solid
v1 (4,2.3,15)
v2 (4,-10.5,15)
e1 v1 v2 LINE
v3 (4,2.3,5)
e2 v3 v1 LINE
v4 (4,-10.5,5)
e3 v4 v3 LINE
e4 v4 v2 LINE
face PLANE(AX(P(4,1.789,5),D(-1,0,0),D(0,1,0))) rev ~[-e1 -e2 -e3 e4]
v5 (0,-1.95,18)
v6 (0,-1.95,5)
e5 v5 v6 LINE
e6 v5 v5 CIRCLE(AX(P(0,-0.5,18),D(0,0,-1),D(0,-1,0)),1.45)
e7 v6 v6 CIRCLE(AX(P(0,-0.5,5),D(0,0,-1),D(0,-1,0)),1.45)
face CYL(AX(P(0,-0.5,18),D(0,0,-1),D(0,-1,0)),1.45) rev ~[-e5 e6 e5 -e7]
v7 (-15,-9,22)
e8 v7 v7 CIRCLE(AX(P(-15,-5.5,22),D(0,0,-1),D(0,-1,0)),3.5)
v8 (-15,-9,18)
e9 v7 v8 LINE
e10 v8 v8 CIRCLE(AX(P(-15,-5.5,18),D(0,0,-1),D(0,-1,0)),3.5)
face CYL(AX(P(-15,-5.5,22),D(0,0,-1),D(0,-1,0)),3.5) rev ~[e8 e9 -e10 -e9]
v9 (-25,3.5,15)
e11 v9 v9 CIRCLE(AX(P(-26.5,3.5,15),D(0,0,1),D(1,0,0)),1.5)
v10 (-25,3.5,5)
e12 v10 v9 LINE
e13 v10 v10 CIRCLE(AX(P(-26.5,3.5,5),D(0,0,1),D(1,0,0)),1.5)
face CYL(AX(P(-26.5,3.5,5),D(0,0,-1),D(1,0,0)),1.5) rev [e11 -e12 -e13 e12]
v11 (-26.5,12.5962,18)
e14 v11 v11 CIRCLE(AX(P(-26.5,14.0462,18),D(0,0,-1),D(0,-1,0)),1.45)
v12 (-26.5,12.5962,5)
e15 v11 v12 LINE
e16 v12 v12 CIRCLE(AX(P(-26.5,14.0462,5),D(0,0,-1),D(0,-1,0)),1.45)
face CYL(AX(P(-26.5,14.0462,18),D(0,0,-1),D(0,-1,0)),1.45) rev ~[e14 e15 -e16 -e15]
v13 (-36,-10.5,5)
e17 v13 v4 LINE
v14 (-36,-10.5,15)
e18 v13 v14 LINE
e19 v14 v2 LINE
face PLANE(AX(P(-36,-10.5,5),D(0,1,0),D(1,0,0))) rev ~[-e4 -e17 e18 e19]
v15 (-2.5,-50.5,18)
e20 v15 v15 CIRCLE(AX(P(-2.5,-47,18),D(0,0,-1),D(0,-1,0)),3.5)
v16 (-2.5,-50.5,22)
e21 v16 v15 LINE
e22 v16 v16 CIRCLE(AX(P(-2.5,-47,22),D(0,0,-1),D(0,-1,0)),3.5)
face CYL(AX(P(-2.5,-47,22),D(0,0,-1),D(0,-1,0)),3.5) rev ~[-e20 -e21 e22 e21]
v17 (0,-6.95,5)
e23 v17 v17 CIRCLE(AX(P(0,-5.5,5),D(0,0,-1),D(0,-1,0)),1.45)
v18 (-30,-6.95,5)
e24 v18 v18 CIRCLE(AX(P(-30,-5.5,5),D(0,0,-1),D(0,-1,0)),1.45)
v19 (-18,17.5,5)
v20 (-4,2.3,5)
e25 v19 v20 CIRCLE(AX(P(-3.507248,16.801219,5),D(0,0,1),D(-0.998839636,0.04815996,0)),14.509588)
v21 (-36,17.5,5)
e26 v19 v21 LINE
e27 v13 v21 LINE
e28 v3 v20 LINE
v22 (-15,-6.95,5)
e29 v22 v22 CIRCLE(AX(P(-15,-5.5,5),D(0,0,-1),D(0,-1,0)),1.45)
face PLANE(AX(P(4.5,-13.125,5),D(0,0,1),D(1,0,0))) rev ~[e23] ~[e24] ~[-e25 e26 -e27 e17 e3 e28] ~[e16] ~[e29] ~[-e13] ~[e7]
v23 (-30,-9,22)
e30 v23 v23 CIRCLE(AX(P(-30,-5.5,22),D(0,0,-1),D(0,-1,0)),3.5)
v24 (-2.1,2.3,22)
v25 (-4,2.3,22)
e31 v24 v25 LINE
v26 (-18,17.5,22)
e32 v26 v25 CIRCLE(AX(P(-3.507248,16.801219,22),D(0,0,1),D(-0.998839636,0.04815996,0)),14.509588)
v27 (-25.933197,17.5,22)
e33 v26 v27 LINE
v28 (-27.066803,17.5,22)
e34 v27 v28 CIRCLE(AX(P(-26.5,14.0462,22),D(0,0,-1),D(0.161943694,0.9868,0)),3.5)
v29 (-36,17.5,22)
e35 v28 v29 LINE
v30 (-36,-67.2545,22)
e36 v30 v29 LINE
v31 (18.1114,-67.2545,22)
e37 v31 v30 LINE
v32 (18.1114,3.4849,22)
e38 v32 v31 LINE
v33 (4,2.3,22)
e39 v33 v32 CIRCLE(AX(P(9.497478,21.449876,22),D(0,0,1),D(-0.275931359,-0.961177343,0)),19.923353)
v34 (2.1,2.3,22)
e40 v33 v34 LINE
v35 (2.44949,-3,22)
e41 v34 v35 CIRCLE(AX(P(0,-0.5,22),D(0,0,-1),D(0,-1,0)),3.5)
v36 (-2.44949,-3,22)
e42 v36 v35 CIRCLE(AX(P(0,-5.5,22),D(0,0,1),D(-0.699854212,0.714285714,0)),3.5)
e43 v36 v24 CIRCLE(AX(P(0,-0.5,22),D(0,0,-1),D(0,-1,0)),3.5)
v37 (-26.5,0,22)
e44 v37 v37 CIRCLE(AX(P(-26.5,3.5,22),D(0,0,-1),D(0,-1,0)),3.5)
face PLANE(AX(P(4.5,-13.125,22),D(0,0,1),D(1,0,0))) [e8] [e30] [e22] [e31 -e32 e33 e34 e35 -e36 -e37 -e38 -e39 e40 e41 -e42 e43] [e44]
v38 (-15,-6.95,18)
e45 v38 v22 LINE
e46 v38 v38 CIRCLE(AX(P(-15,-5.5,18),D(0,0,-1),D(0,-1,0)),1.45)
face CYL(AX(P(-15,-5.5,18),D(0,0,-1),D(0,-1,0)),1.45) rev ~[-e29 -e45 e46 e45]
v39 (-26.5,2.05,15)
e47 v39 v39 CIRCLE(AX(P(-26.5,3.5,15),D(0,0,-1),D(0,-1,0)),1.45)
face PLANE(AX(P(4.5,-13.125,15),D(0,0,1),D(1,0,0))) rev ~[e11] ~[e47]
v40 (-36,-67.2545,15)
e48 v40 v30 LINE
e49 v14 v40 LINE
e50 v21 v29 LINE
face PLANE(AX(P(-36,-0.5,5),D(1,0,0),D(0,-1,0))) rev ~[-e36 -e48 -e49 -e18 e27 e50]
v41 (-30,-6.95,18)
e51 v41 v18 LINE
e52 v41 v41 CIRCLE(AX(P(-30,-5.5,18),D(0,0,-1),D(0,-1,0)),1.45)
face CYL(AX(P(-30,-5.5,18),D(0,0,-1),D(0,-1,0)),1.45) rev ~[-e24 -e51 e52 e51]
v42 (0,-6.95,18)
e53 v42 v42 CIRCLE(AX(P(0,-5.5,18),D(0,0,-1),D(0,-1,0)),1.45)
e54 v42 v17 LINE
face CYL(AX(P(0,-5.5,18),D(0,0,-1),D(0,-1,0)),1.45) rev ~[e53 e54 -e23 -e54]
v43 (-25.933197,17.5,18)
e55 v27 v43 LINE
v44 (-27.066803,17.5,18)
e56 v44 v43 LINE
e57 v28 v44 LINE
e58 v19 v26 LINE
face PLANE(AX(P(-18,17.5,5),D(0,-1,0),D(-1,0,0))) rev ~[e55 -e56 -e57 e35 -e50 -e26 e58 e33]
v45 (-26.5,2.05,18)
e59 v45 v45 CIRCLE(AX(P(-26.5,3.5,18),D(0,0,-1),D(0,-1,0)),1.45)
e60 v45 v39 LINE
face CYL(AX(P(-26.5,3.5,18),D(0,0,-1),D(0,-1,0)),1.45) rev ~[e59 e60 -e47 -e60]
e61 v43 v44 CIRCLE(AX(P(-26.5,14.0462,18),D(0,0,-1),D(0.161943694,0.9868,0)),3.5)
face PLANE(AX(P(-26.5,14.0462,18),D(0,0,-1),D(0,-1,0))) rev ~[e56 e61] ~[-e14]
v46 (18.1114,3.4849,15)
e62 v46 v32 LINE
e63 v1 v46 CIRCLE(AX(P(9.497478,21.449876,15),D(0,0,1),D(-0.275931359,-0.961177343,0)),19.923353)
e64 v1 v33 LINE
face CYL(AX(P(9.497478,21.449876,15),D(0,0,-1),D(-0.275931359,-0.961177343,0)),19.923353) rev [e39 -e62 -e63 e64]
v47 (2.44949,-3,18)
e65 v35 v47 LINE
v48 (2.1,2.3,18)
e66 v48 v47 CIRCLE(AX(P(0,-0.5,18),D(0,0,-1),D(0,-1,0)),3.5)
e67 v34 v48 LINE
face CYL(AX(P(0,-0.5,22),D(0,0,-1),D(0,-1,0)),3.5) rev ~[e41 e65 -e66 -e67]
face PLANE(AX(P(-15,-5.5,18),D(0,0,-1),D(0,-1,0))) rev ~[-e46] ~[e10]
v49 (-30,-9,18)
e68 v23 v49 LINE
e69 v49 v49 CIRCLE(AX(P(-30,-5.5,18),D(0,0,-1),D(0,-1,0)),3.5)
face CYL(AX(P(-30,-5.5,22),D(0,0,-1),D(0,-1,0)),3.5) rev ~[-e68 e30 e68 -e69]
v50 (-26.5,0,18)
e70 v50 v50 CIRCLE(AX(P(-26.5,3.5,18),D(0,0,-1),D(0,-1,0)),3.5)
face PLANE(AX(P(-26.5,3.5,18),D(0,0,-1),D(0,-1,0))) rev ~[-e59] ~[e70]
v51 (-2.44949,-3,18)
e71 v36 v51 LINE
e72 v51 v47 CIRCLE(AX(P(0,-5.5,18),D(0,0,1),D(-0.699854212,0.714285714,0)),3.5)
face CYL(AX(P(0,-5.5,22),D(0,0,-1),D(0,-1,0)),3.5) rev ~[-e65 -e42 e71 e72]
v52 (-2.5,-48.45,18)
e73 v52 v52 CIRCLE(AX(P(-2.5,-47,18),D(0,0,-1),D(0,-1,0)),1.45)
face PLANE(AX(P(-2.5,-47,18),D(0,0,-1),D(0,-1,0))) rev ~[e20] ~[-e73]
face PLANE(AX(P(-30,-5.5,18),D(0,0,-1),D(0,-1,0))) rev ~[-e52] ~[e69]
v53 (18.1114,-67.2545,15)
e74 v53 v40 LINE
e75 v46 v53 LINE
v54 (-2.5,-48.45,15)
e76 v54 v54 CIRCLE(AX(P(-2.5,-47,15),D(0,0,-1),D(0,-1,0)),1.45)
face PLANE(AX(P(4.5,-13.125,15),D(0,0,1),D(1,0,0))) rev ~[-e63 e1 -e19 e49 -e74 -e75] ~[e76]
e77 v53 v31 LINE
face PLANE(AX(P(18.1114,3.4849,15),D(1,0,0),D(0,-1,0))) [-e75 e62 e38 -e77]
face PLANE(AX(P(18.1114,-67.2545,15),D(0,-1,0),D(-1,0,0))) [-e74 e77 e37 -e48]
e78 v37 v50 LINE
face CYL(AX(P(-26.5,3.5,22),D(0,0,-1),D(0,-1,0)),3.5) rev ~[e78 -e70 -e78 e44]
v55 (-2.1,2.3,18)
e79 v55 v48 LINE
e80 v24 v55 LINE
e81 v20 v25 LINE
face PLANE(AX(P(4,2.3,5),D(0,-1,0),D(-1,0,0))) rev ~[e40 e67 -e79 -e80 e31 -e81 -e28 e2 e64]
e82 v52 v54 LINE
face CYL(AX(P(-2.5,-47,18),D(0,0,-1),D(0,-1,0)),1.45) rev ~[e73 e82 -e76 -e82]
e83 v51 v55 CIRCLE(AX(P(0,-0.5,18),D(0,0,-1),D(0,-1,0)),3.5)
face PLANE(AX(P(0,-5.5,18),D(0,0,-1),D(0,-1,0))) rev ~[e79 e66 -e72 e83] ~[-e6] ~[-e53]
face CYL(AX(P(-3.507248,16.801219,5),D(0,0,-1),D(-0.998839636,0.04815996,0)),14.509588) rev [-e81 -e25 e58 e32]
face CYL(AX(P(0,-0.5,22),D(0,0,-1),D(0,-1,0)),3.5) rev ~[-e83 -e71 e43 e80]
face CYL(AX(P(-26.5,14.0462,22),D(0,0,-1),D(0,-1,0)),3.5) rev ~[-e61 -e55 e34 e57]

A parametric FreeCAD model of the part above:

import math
import FreeCAD as App
import Part
import Sketcher

V = App.Vector

doc = App.newDocument("Part")
body = doc.addObject("PartDesign::Body", "Body")

sketch1 = doc.addObject("Sketcher::SketchObject", "Sketch")
body.addObject(sketch1)
sketch1.AttachmentSupport = (doc.XY_Plane, [""])
sketch1.MapMode = "FlatFace"
sketch1.AttachmentOffset = App.Placement(V(0, 0, 5), App.Rotation())
sketch1.addGeometry([
    Part.LineSegment(V(4, 2.3, 0), V(-4, 2.3, 0)),
    Part.ArcOfCircle(Part.Circle(V(-3.5, 16.8, 0), V(0, 0, 1), 14.5), math.radians(177), math.radians(268)),
    Part.LineSegment(V(-18, 17.5, 0), V(-36, 17.5, 0)),
    Part.LineSegment(V(-36, 17.5, 0), V(-36, -10.5, 0)),
    Part.LineSegment(V(-36, -10.5, 0), V(4, -10.5, 0)),
    Part.LineSegment(V(4, -10.5, 0), V(4, 2.3, 0)),
    Part.Circle(V(-30, -5.5, 0), V(0, 0, 1), 1.4),
    Part.Circle(V(-15, -5.5, 0), V(0, 0, 1), 1.4),
    Part.Circle(V(0, -5.5, 0), V(0, 0, 1), 1.4),
    Part.Circle(V(0, -0.5, 0), V(0, 0, 1), 1.4),
    Part.Circle(V(-26.5, 3.5, 0), V(0, 0, 1), 1.5),
    Part.Circle(V(-26.5, 14, 0), V(0, 0, 1), 1.4),
], False)
sketch1.addConstraint([
    Sketcher.Constraint("Coincident", 0, 2, 1, 2),
    Sketcher.Constraint("Coincident", 1, 1, 2, 1),
    Sketcher.Constraint("Coincident", 2, 2, 3, 1),
    Sketcher.Constraint("Coincident", 3, 2, 4, 1),
    Sketcher.Constraint("Coincident", 4, 2, 5, 1),
    Sketcher.Constraint("Coincident", 5, 2, 0, 1),
    Sketcher.Constraint("Horizontal", 0),
    Sketcher.Constraint("Horizontal", 2),
    Sketcher.Constraint("Vertical", 3),
    Sketcher.Constraint("Horizontal", 4),
    Sketcher.Constraint("Vertical", 5),
    Sketcher.Constraint("Equal", 6, 7),
    Sketcher.Constraint("Equal", 7, 8),
    Sketcher.Constraint("Equal", 8, 9),
    Sketcher.Constraint("Equal", 9, 11),
    Sketcher.Constraint("PointOnObject", 8, 3, -2),
    Sketcher.Constraint("PointOnObject", 9, 3, -2),
    Sketcher.Constraint("Horizontal", 6, 3, 7, 3),
    Sketcher.Constraint("Horizontal", 7, 3, 8, 3),
    Sketcher.Constraint("Vertical", 10, 3, 11, 3),
    Sketcher.Constraint("Diameter", 10, 3.0),
    Sketcher.Constraint("Diameter", 6, 2.8),
    Sketcher.Constraint("DistanceX", 0, 2, 0, 1, 8.0),
    Sketcher.Constraint("DistanceX", 2, 2, 2, 1, 18.0),
    Sketcher.Constraint("DistanceX", 4, 1, 4, 2, 40.0),
    Sketcher.Constraint("DistanceY", 3, 2, 3, 1, 28.0),
    Sketcher.Constraint("DistanceY", 5, 1, 5, 2, 12.8),
    Sketcher.Constraint("DistanceX", 6, 3, -1, 1, 30.0),
    Sketcher.Constraint("DistanceX", 7, 3, -1, 1, 15.0),
    Sketcher.Constraint("DistanceX", 0, 2, -1, 1, 4.0),
    Sketcher.Constraint("DistanceY", 8, 3, 9, 3, 5.0),
    Sketcher.Constraint("DistanceY", 6, 3, 10, 3, 9.0),
    Sketcher.Constraint("DistanceY", 10, 3, 1, 1, 14.0),
    Sketcher.Constraint("DistanceY", 6, 3, -1, 1, 5.5),
    Sketcher.Constraint("DistanceX", 10, 3, -1, 1, 26.5),
    Sketcher.Constraint("Radius", 1, 14.5095),
    Sketcher.Constraint("DistanceY", 11, 3, 1, 3, 2.755),
])
pad1 = doc.addObject("PartDesign::Pad", "Pad")
body.addObject(pad1)
pad1.Profile = sketch1
pad1.Length = 10

sketch2 = doc.addObject("Sketcher::SketchObject", "Sketch001")
body.addObject(sketch2)
sketch2.AttachmentSupport = (doc.XY_Plane, [""])
sketch2.MapMode = "FlatFace"
sketch2.AttachmentOffset = App.Placement(V(0, 0, 15), App.Rotation())
sketch2.addGeometry([
    Part.LineSegment(V(-36, -67.3, 0), V(18.1, -67.3, 0)),
    Part.LineSegment(V(18.1, -67.3, 0), V(18.1, 3.5, 0)),
    Part.ArcOfCircle(Part.Circle(V(9.5, 21.5, 0), V(0, 0, 1), 19.9), math.radians(-106), math.radians(-64)),
    Part.LineSegment(V(4, 2.3, 0), V(-4, 2.3, 0)),
    Part.ArcOfCircle(Part.Circle(V(-3.5, 16.8, 0), V(0, 0, 1), 14.5), math.radians(177), math.radians(268)),
    Part.LineSegment(V(-18, 17.5, 0), V(-36, 17.5, 0)),
    Part.LineSegment(V(-36, 17.5, 0), V(-36, -67.3, 0)),
    Part.Circle(V(-30, -5.5, 0), V(0, 0, 1), 1.4),
    Part.Circle(V(-15, -5.5, 0), V(0, 0, 1), 1.4),
    Part.Circle(V(0, -5.5, 0), V(0, 0, 1), 1.4),
    Part.Circle(V(0, -0.5, 0), V(0, 0, 1), 1.4),
], False)
sketch2.addConstraint([
    Sketcher.Constraint("Coincident", 0, 2, 1, 1),
    Sketcher.Constraint("Coincident", 1, 2, 2, 2),
    Sketcher.Constraint("Coincident", 2, 1, 3, 1),
    Sketcher.Constraint("Coincident", 3, 2, 4, 2),
    Sketcher.Constraint("Coincident", 4, 1, 5, 1),
    Sketcher.Constraint("Coincident", 5, 2, 6, 1),
    Sketcher.Constraint("Coincident", 6, 2, 0, 1),
    Sketcher.Constraint("Horizontal", 0),
    Sketcher.Constraint("Vertical", 1),
    Sketcher.Constraint("Horizontal", 3),
    Sketcher.Constraint("Horizontal", 5),
    Sketcher.Constraint("Vertical", 6),
    Sketcher.Constraint("Equal", 7, 8),
    Sketcher.Constraint("Equal", 8, 9),
    Sketcher.Constraint("Equal", 9, 10),
    Sketcher.Constraint("PointOnObject", 9, 3, -2),
    Sketcher.Constraint("PointOnObject", 10, 3, -2),
    Sketcher.Constraint("Horizontal", 7, 3, 8, 3),
    Sketcher.Constraint("Horizontal", 8, 3, 9, 3),
    Sketcher.Constraint("Diameter", 7, 2.8),
    Sketcher.Constraint("DistanceX", 3, 2, 3, 1, 8.0),
    Sketcher.Constraint("DistanceX", 5, 2, 5, 1, 18.0),
    Sketcher.Constraint("DistanceX", 7, 3, -1, 1, 30.0),
    Sketcher.Constraint("DistanceX", 8, 3, -1, 1, 15.0),
    Sketcher.Constraint("DistanceX", -1, 1, 2, 1, 4.0),
    Sketcher.Constraint("DistanceX", 4, 1, -1, 1, 18.0),
    Sketcher.Constraint("DistanceY", 9, 3, 10, 3, 5.0),
    Sketcher.Constraint("DistanceY", 8, 3, 4, 1, 23.0),
    Sketcher.Constraint("DistanceY", 7, 3, -1, 1, 5.5),
    Sketcher.Constraint("DistanceY", -1, 1, 2, 1, 2.3),
    Sketcher.Constraint("Radius", 2, 19.9236),
    Sketcher.Constraint("Radius", 4, 14.5095),
    Sketcher.Constraint("DistanceY", -1, 1, 2, 3, 21.45),
    Sketcher.Constraint("DistanceX", 0, 1, 0, 2, 54.1114),
    Sketcher.Constraint("DistanceY", 1, 1, 1, 2, 70.7394),
])
pad2 = doc.addObject("PartDesign::Pad", "Pad001")
body.addObject(pad2)
pad2.Profile = sketch2
pad2.Length = 7

sketch3 = doc.addObject("Sketcher::SketchObject", "Sketch002")
body.addObject(sketch3)
sketch3.AttachmentSupport = (doc.XY_Plane, [""])
sketch3.MapMode = "FlatFace"
sketch3.AttachmentOffset = App.Placement(V(0, 0, 22), App.Rotation())
sketch3.addGeometry([
    Part.Circle(V(-30, -5.5, 0), V(0, 0, 1), 1.4),
    Part.Circle(V(-15, -5.5, 0), V(0, 0, 1), 1.4),
    Part.Circle(V(0, -5.5, 0), V(0, 0, 1), 1.4),
    Part.Circle(V(0, -0.5, 0), V(0, 0, 1), 1.4),
    Part.Circle(V(-26.5, 3.5, 0), V(0, 0, 1), 1.4),
    Part.Circle(V(-2.5, -47, 0), V(0, 0, 1), 1.4),
    Part.Circle(V(-26.5, 14, 0), V(0, 0, 1), 1.4),
], False)
sketch3.addConstraint([
    Sketcher.Constraint("Equal", 0, 1),
    Sketcher.Constraint("Equal", 1, 2),
    Sketcher.Constraint("Equal", 2, 3),
    Sketcher.Constraint("Equal", 3, 4),
    Sketcher.Constraint("Equal", 4, 5),
    Sketcher.Constraint("Equal", 5, 6),
    Sketcher.Constraint("PointOnObject", 2, 3, -2),
    Sketcher.Constraint("PointOnObject", 3, 3, -2),
    Sketcher.Constraint("Horizontal", 0, 3, 1, 3),
    Sketcher.Constraint("Horizontal", 1, 3, 2, 3),
    Sketcher.Constraint("Vertical", 4, 3, 6, 3),
    Sketcher.Constraint("Diameter", 0, 2.9),
    Sketcher.Constraint("DistanceX", 0, 3, -1, 1, 30.0),
    Sketcher.Constraint("DistanceX", 1, 3, -1, 1, 15.0),
    Sketcher.Constraint("DistanceY", 5, 3, -1, 1, 47.0),
    Sketcher.Constraint("DistanceY", 2, 3, 3, 3, 5.0),
    Sketcher.Constraint("DistanceY", 0, 3, 4, 3, 9.0),
    Sketcher.Constraint("DistanceX", 4, 3, 5, 3, 24.0),
    Sketcher.Constraint("DistanceY", 0, 3, -1, 1, 5.5),
    Sketcher.Constraint("DistanceX", 4, 3, -1, 1, 26.5),
    Sketcher.Constraint("DistanceY", -1, 1, 6, 3, 14.0462),
])
doc.recompute()
hole = doc.addObject("PartDesign::Hole", "Hole")
body.addObject(hole)
hole.Profile = sketch3
hole.ThreadType = "None"
hole.Diameter = 2.9
hole.DepthType = "ThroughAll"
hole.HoleCutType = "Counterbore"
hole.HoleCutDiameter = 7
hole.HoleCutDepth = 4

doc.recompute()
